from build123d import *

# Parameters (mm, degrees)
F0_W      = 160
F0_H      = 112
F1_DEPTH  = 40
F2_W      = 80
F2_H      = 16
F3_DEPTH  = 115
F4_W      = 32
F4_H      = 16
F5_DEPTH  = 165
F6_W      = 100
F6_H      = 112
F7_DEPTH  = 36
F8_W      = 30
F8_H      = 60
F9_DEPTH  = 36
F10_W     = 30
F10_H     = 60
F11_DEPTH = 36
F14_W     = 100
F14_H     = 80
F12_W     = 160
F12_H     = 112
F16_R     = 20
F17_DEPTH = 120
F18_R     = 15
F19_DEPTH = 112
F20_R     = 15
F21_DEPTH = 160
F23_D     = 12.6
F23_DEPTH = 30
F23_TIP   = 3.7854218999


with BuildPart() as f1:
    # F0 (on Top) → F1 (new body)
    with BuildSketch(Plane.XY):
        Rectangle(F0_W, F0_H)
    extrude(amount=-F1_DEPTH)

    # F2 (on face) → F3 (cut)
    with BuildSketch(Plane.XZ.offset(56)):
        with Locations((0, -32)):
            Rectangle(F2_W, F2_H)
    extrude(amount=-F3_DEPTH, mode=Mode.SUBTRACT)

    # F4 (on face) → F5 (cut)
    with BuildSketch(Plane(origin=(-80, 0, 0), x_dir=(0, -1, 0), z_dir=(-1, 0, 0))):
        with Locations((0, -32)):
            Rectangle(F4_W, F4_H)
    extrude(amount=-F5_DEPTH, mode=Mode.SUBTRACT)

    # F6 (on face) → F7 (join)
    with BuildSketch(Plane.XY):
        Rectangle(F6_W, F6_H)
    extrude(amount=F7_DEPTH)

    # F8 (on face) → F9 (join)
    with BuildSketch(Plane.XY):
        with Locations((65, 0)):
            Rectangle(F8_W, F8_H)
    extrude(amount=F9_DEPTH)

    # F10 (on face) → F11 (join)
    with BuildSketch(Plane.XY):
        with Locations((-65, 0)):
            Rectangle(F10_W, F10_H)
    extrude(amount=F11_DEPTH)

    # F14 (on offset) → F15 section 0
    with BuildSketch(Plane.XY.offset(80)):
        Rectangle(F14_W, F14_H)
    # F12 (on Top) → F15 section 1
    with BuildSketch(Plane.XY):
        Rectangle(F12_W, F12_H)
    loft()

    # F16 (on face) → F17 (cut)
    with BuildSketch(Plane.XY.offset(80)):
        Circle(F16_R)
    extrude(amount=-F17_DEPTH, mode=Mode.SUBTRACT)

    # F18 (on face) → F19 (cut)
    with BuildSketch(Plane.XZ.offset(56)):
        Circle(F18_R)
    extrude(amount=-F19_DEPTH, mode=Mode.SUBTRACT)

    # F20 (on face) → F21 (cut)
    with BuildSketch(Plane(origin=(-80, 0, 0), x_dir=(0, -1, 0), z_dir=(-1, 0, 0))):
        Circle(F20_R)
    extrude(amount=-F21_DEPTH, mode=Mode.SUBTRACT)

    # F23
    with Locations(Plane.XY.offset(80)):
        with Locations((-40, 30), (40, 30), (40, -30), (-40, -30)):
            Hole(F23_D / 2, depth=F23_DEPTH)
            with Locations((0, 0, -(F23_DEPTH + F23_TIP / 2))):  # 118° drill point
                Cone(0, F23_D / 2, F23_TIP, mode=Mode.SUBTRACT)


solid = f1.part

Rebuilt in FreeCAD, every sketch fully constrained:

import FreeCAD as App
import Part
import Sketcher

doc = App.newDocument("Part")
body = doc.addObject("PartDesign::Body", "Body")

# Sketch on XY plane
sketch1 = body.newObject("Sketcher::SketchObject", "Sketch")
sketch1.AttachmentSupport = (doc.getObject("XY_Plane"), [""])
sketch1.MapMode = "FlatFace"
sketch1.addGeometry(Part.LineSegment(App.Vector(-80, 56, 0), App.Vector(-80, -56, 0)), False)
sketch1.addGeometry(Part.LineSegment(App.Vector(-80, -56, 0), App.Vector(80, -56, 0)), False)
sketch1.addGeometry(Part.LineSegment(App.Vector(80, -56, 0), App.Vector(80, 56, 0)), False)
sketch1.addGeometry(Part.LineSegment(App.Vector(80, 56, 0), App.Vector(-80, 56, 0)), False)
sketch1.addConstraint(Sketcher.Constraint("Coincident", 0, 2, 1, 1))
sketch1.addConstraint(Sketcher.Constraint("Coincident", 1, 2, 2, 1))
sketch1.addConstraint(Sketcher.Constraint("Coincident", 2, 2, 3, 1))
sketch1.addConstraint(Sketcher.Constraint("Coincident", 3, 2, 0, 1))
sketch1.addConstraint(Sketcher.Constraint("Vertical", 0))
sketch1.addConstraint(Sketcher.Constraint("Horizontal", 1))
sketch1.addConstraint(Sketcher.Constraint("Vertical", 2))
sketch1.addConstraint(Sketcher.Constraint("Horizontal", 3))
sketch1.addConstraint(Sketcher.Constraint("Symmetric", 0, 2, 2, 2, -1, 1))
sketch1.addConstraint(Sketcher.Constraint("DistanceX", 1, 1, 1, 2, 160.0))
sketch1.addConstraint(Sketcher.Constraint("DistanceY", 0, 2, 0, 1, 112.0))
pad1 = body.newObject("PartDesign::Pad", "Pad")
pad1.Profile = sketch1
pad1.Length = 40
pad1.Reversed = True

# Sketch on XZ plane
sketch2 = body.newObject("Sketcher::SketchObject", "Sketch001")
sketch2.AttachmentSupport = (doc.getObject("XZ_Plane"), [""])
sketch2.MapMode = "FlatFace"
sketch2.AttachmentOffset = App.Placement(App.Vector(0, 0, 56), App.Rotation())
sketch2.addGeometry(Part.LineSegment(App.Vector(-40, -24, 0), App.Vector(-40, -40, 0)), False)
sketch2.addGeometry(Part.LineSegment(App.Vector(-40, -40, 0), App.Vector(40, -40, 0)), False)
sketch2.addGeometry(Part.LineSegment(App.Vector(40, -40, 0), App.Vector(40, -24, 0)), False)
sketch2.addGeometry(Part.LineSegment(App.Vector(40, -24, 0), App.Vector(-40, -24, 0)), False)
sketch2.addConstraint(Sketcher.Constraint("Coincident", 0, 2, 1, 1))
sketch2.addConstraint(Sketcher.Constraint("Coincident", 1, 2, 2, 1))
sketch2.addConstraint(Sketcher.Constraint("Coincident", 2, 2, 3, 1))
sketch2.addConstraint(Sketcher.Constraint("Coincident", 3, 2, 0, 1))
sketch2.addConstraint(Sketcher.Constraint("Vertical", 0))
sketch2.addConstraint(Sketcher.Constraint("Horizontal", 1))
sketch2.addConstraint(Sketcher.Constraint("Vertical", 2))
sketch2.addConstraint(Sketcher.Constraint("Horizontal", 3))
sketch2.addConstraint(Sketcher.Constraint("DistanceX", 1, 1, 1, 2, 80.0))
sketch2.addConstraint(Sketcher.Constraint("DistanceY", 0, 2, 0, 1, 16.0))
sketch2.addConstraint(Sketcher.Constraint("DistanceX", 0, 2, -1, 1, 40.0))
sketch2.addConstraint(Sketcher.Constraint("DistanceY", 0, 2, -1, 1, 40.0))
pocket1 = body.newObject("PartDesign::Pocket", "Pocket")
pocket1.Profile = sketch2
pocket1.Length = 115

# Sketch on YZ plane
sketch3 = body.newObject("Sketcher::SketchObject", "Sketch002")
sketch3.AttachmentSupport = (doc.getObject("YZ_Plane"), [""])
sketch3.MapMode = "FlatFace"
sketch3.AttachmentOffset = App.Placement(App.Vector(0, 0, -80), App.Rotation())
sketch3.addGeometry(Part.LineSegment(App.Vector(16, -24, 0), App.Vector(16, -40, 0)), False)
sketch3.addGeometry(Part.LineSegment(App.Vector(16, -40, 0), App.Vector(-16, -40, 0)), False)
sketch3.addGeometry(Part.LineSegment(App.Vector(-16, -40, 0), App.Vector(-16, -24, 0)), False)
sketch3.addGeometry(Part.LineSegment(App.Vector(-16, -24, 0), App.Vector(16, -24, 0)), False)
sketch3.addConstraint(Sketcher.Constraint("Coincident", 0, 2, 1, 1))
sketch3.addConstraint(Sketcher.Constraint("Coincident", 1, 2, 2, 1))
sketch3.addConstraint(Sketcher.Constraint("Coincident", 2, 2, 3, 1))
sketch3.addConstraint(Sketcher.Constraint("Coincident", 3, 2, 0, 1))
sketch3.addConstraint(Sketcher.Constraint("Vertical", 0))
sketch3.addConstraint(Sketcher.Constraint("Horizontal", 1))
sketch3.addConstraint(Sketcher.Constraint("Vertical", 2))
sketch3.addConstraint(Sketcher.Constraint("Horizontal", 3))
sketch3.addConstraint(Sketcher.Constraint("DistanceX", 1, 2, 1, 1, 32.0))
sketch3.addConstraint(Sketcher.Constraint("DistanceY", 0, 2, 0, 1, 16.0))
sketch3.addConstraint(Sketcher.Constraint("DistanceX", -1, 1, 0, 2, 16.0))
sketch3.addConstraint(Sketcher.Constraint("DistanceY", 0, 2, -1, 1, 40.0))
pocket2 = body.newObject("PartDesign::Pocket", "Pocket001")
pocket2.Profile = sketch3
pocket2.Length = 165
pocket2.Reversed = True

# Sketch on XY plane
sketch4 = body.newObject("Sketcher::SketchObject", "Sketch003")
sketch4.AttachmentSupport = (doc.getObject("XY_Plane"), [""])
sketch4.MapMode = "FlatFace"
sketch4.addGeometry(Part.LineSegment(App.Vector(-50, 56, 0), App.Vector(-50, -56, 0)), False)
sketch4.addGeometry(Part.LineSegment(App.Vector(-50, -56, 0), App.Vector(50, -56, 0)), False)
sketch4.addGeometry(Part.LineSegment(App.Vector(50, -56, 0), App.Vector(50, 56, 0)), False)
sketch4.addGeometry(Part.LineSegment(App.Vector(50, 56, 0), App.Vector(-50, 56, 0)), False)
sketch4.addConstraint(Sketcher.Constraint("Coincident", 0, 2, 1, 1))
sketch4.addConstraint(Sketcher.Constraint("Coincident", 1, 2, 2, 1))
sketch4.addConstraint(Sketcher.Constraint("Coincident", 2, 2, 3, 1))
sketch4.addConstraint(Sketcher.Constraint("Coincident", 3, 2, 0, 1))
sketch4.addConstraint(Sketcher.Constraint("Vertical", 0))
sketch4.addConstraint(Sketcher.Constraint("Horizontal", 1))
sketch4.addConstraint(Sketcher.Constraint("Vertical", 2))
sketch4.addConstraint(Sketcher.Constraint("Horizontal", 3))
sketch4.addConstraint(Sketcher.Constraint("Symmetric", 0, 2, 2, 2, -1, 1))
sketch4.addConstraint(Sketcher.Constraint("DistanceX", 1, 1, 1, 2, 100.0))
sketch4.addConstraint(Sketcher.Constraint("DistanceY", 0, 2, 0, 1, 112.0))
pad2 = body.newObject("PartDesign::Pad", "Pad001")
pad2.Profile = sketch4
pad2.Length = 36

# Sketch on XY plane
sketch5 = body.newObject("Sketcher::SketchObject", "Sketch004")
sketch5.AttachmentSupport = (doc.getObject("XY_Plane"), [""])
sketch5.MapMode = "FlatFace"
sketch5.addGeometry(Part.LineSegment(App.Vector(50, 30, 0), App.Vector(50, -30, 0)), False)
sketch5.addGeometry(Part.LineSegment(App.Vector(50, -30, 0), App.Vector(80, -30, 0)), False)
sketch5.addGeometry(Part.LineSegment(App.Vector(80, -30, 0), App.Vector(80, 30, 0)), False)
sketch5.addGeometry(Part.LineSegment(App.Vector(80, 30, 0), App.Vector(50, 30, 0)), False)
sketch5.addConstraint(Sketcher.Constraint("Coincident", 0, 2, 1, 1))
sketch5.addConstraint(Sketcher.Constraint("Coincident", 1, 2, 2, 1))
sketch5.addConstraint(Sketcher.Constraint("Coincident", 2, 2, 3, 1))
sketch5.addConstraint(Sketcher.Constraint("Coincident", 3, 2, 0, 1))
sketch5.addConstraint(Sketcher.Constraint("Vertical", 0))
sketch5.addConstraint(Sketcher.Constraint("Horizontal", 1))
sketch5.addConstraint(Sketcher.Constraint("Vertical", 2))
sketch5.addConstraint(Sketcher.Constraint("Horizontal", 3))
sketch5.addConstraint(Sketcher.Constraint("DistanceX", 1, 1, 1, 2, 30.0))
sketch5.addConstraint(Sketcher.Constraint("DistanceY", 0, 2, 0, 1, 60.0))
sketch5.addConstraint(Sketcher.Constraint("DistanceX", -1, 1, 0, 2, 50.0))
sketch5.addConstraint(Sketcher.Constraint("DistanceY", 0, 2, -1, 1, 30.0))
pad3 = body.newObject("PartDesign::Pad", "Pad002")
pad3.Profile = sketch5
pad3.Length = 36

# Sketch on XY plane
sketch6 = body.newObject("Sketcher::SketchObject", "Sketch005")
sketch6.AttachmentSupport = (doc.getObject("XY_Plane"), [""])
sketch6.MapMode = "FlatFace"
sketch6.addGeometry(Part.LineSegment(App.Vector(-80, 30, 0), App.Vector(-80, -30, 0)), False)
sketch6.addGeometry(Part.LineSegment(App.Vector(-80, -30, 0), App.Vector(-50, -30, 0)), False)
sketch6.addGeometry(Part.LineSegment(App.Vector(-50, -30, 0), App.Vector(-50, 30, 0)), False)
sketch6.addGeometry(Part.LineSegment(App.Vector(-50, 30, 0), App.Vector(-80, 30, 0)), False)
sketch6.addConstraint(Sketcher.Constraint("Coincident", 0, 2, 1, 1))
sketch6.addConstraint(Sketcher.Constraint("Coincident", 1, 2, 2, 1))
sketch6.addConstraint(Sketcher.Constraint("Coincident", 2, 2, 3, 1))
sketch6.addConstraint(Sketcher.Constraint("Coincident", 3, 2, 0, 1))
sketch6.addConstraint(Sketcher.Constraint("Vertical", 0))
sketch6.addConstraint(Sketcher.Constraint("Horizontal", 1))
sketch6.addConstraint(Sketcher.Constraint("Vertical", 2))
sketch6.addConstraint(Sketcher.Constraint("Horizontal", 3))
sketch6.addConstraint(Sketcher.Constraint("DistanceX", 1, 1, 1, 2, 30.0))
sketch6.addConstraint(Sketcher.Constraint("DistanceY", 0, 2, 0, 1, 60.0))
sketch6.addConstraint(Sketcher.Constraint("DistanceX", 0, 2, -1, 1, 80.0))
sketch6.addConstraint(Sketcher.Constraint("DistanceY", 0, 2, -1, 1, 30.0))
pad4 = body.newObject("PartDesign::Pad", "Pad003")
pad4.Profile = sketch6
pad4.Length = 36

# Sketch on XY plane
sketch7 = body.newObject("Sketcher::SketchObject", "Sketch006")
sketch7.AttachmentSupport = (doc.getObject("XY_Plane"), [""])
sketch7.MapMode = "FlatFace"
sketch7.AttachmentOffset = App.Placement(App.Vector(0, 0, 80), App.Rotation())
sketch7.addGeometry(Part.LineSegment(App.Vector(-50, 40, 0), App.Vector(-50, -40, 0)), False)
sketch7.addGeometry(Part.LineSegment(App.Vector(-50, -40, 0), App.Vector(50, -40, 0)), False)
sketch7.addGeometry(Part.LineSegment(App.Vector(50, -40, 0), App.Vector(50, 40, 0)), False)
sketch7.addGeometry(Part.LineSegment(App.Vector(50, 40, 0), App.Vector(-50, 40, 0)), False)
sketch7.addConstraint(Sketcher.Constraint("Coincident", 0, 2, 1, 1))
sketch7.addConstraint(Sketcher.Constraint("Coincident", 1, 2, 2, 1))
sketch7.addConstraint(Sketcher.Constraint("Coincident", 2, 2, 3, 1))
sketch7.addConstraint(Sketcher.Constraint("Coincident", 3, 2, 0, 1))
sketch7.addConstraint(Sketcher.Constraint("Vertical", 0))
sketch7.addConstraint(Sketcher.Constraint("Horizontal", 1))
sketch7.addConstraint(Sketcher.Constraint("Vertical", 2))
sketch7.addConstraint(Sketcher.Constraint("Horizontal", 3))
sketch7.addConstraint(Sketcher.Constraint("Symmetric", 0, 2, 2, 2, -1, 1))
sketch7.addConstraint(Sketcher.Constraint("DistanceX", 1, 1, 1, 2, 100.0))
sketch7.addConstraint(Sketcher.Constraint("DistanceY", 0, 2, 0, 1, 80.0))

# Sketch on XY plane
sketch8 = body.newObject("Sketcher::SketchObject", "Sketch007")
sketch8.AttachmentSupport = (doc.getObject("XY_Plane"), [""])
sketch8.MapMode = "FlatFace"
sketch8.addGeometry(Part.LineSegment(App.Vector(-80, 56, 0), App.Vector(-80, -56, 0)), False)
sketch8.addGeometry(Part.LineSegment(App.Vector(-80, -56, 0), App.Vector(80, -56, 0)), False)
sketch8.addGeometry(Part.LineSegment(App.Vector(80, -56, 0), App.Vector(80, 56, 0)), False)
sketch8.addGeometry(Part.LineSegment(App.Vector(80, 56, 0), App.Vector(-80, 56, 0)), False)
sketch8.addConstraint(Sketcher.Constraint("Coincident", 0, 2, 1, 1))
sketch8.addConstraint(Sketcher.Constraint("Coincident", 1, 2, 2, 1))
sketch8.addConstraint(Sketcher.Constraint("Coincident", 2, 2, 3, 1))
sketch8.addConstraint(Sketcher.Constraint("Coincident", 3, 2, 0, 1))
sketch8.addConstraint(Sketcher.Constraint("Vertical", 0))
sketch8.addConstraint(Sketcher.Constraint("Horizontal", 1))
sketch8.addConstraint(Sketcher.Constraint("Vertical", 2))
sketch8.addConstraint(Sketcher.Constraint("Horizontal", 3))
sketch8.addConstraint(Sketcher.Constraint("Symmetric", 0, 2, 2, 2, -1, 1))
sketch8.addConstraint(Sketcher.Constraint("DistanceX", 1, 1, 1, 2, 160.0))
sketch8.addConstraint(Sketcher.Constraint("DistanceY", 0, 2, 0, 1, 112.0))

additiveloft = body.newObject("PartDesign::AdditiveLoft", "AdditiveLoft")
additiveloft.Profile = sketch7
additiveloft.Sections = [sketch8]

# Sketch on XY plane
sketch9 = body.newObject("Sketcher::SketchObject", "Sketch008")
sketch9.AttachmentSupport = (doc.getObject("XY_Plane"), [""])
sketch9.MapMode = "FlatFace"
sketch9.AttachmentOffset = App.Placement(App.Vector(0, 0, 80), App.Rotation())
sketch9.addGeometry(Part.Circle(App.Vector(0, 0, 0), App.Vector(0, 0, 1), 20), False)
sketch9.addConstraint(Sketcher.Constraint("Coincident", 0, 3, -1, 1))
sketch9.addConstraint(Sketcher.Constraint("Diameter", 0, 40.0))
pocket3 = body.newObject("PartDesign::Pocket", "Pocket002")
pocket3.Profile = sketch9
pocket3.Length = 120

# Sketch on XZ plane
sketch10 = body.newObject("Sketcher::SketchObject", "Sketch009")
sketch10.AttachmentSupport = (doc.getObject("XZ_Plane"), [""])
sketch10.MapMode = "FlatFace"
sketch10.AttachmentOffset = App.Placement(App.Vector(0, 0, 56), App.Rotation())
sketch10.addGeometry(Part.Circle(App.Vector(0, 0, 0), App.Vector(0, 0, 1), 15), False)
sketch10.addConstraint(Sketcher.Constraint("Coincident", 0, 3, -1, 1))
sketch10.addConstraint(Sketcher.Constraint("Diameter", 0, 30.0))
pocket4 = body.newObject("PartDesign::Pocket", "Pocket003")
pocket4.Profile = sketch10
pocket4.Length = 112

# Sketch on YZ plane
sketch11 = body.newObject("Sketcher::SketchObject", "Sketch010")
sketch11.AttachmentSupport = (doc.getObject("YZ_Plane"), [""])
sketch11.MapMode = "FlatFace"
sketch11.AttachmentOffset = App.Placement(App.Vector(0, 0, -80), App.Rotation())
sketch11.addGeometry(Part.Circle(App.Vector(0, 0, 0), App.Vector(0, 0, 1), 15), False)
sketch11.addConstraint(Sketcher.Constraint("Coincident", 0, 3, -1, 1))
sketch11.addConstraint(Sketcher.Constraint("Diameter", 0, 30.0))
pocket5 = body.newObject("PartDesign::Pocket", "Pocket004")
pocket5.Profile = sketch11
pocket5.Length = 160
pocket5.Reversed = True

# Sketch on XY plane
sketch12 = body.newObject("Sketcher::SketchObject", "Sketch011")
sketch12.AttachmentSupport = (doc.getObject("XY_Plane"), [""])
sketch12.MapMode = "FlatFace"
sketch12.AttachmentOffset = App.Placement(App.Vector(0, 0, 80), App.Rotation())
sketch12.addGeometry(Part.Circle(App.Vector(-40, 30, 0), App.Vector(0, 0, 1), 6), False)
sketch12.addGeometry(Part.Circle(App.Vector(40, 30, 0), App.Vector(0, 0, 1), 6), False)
sketch12.addGeometry(Part.Circle(App.Vector(40, -30, 0), App.Vector(0, 0, 1), 6), False)
sketch12.addGeometry(Part.Circle(App.Vector(-40, -30, 0), App.Vector(0, 0, 1), 6), False)
sketch12.addConstraint(Sketcher.Constraint("Equal", 0, 1))
sketch12.addConstraint(Sketcher.Constraint("Equal", 1, 2))
sketch12.addConstraint(Sketcher.Constraint("Equal", 2, 3))
sketch12.addConstraint(Sketcher.Constraint("Symmetric", 0, 3, 2, 3, -1, 1))
sketch12.addConstraint(Sketcher.Constraint("Symmetric", 1, 3, 3, 3, -1, 1))
sketch12.addConstraint(Sketcher.Constraint("Symmetric", 0, 3, 1, 3, -2))
sketch12.addConstraint(Sketcher.Constraint("Diameter", 0, 12.6))
sketch12.addConstraint(Sketcher.Constraint("DistanceX", 0, 3, -1, 1, 40.0))
sketch12.addConstraint(Sketcher.Constraint("DistanceY", -1, 1, 0, 3, 30.0))
doc.recompute()
hole = body.newObject("PartDesign::Hole", "Hole")
hole.Profile = sketch12
hole.ThreadType = "None"
hole.Diameter = 12.6
hole.DepthType = "Dimension"
hole.Depth = 30
hole.DrillPoint = "Angled"
hole.DrillPointAngle = 118

doc.recompute()
